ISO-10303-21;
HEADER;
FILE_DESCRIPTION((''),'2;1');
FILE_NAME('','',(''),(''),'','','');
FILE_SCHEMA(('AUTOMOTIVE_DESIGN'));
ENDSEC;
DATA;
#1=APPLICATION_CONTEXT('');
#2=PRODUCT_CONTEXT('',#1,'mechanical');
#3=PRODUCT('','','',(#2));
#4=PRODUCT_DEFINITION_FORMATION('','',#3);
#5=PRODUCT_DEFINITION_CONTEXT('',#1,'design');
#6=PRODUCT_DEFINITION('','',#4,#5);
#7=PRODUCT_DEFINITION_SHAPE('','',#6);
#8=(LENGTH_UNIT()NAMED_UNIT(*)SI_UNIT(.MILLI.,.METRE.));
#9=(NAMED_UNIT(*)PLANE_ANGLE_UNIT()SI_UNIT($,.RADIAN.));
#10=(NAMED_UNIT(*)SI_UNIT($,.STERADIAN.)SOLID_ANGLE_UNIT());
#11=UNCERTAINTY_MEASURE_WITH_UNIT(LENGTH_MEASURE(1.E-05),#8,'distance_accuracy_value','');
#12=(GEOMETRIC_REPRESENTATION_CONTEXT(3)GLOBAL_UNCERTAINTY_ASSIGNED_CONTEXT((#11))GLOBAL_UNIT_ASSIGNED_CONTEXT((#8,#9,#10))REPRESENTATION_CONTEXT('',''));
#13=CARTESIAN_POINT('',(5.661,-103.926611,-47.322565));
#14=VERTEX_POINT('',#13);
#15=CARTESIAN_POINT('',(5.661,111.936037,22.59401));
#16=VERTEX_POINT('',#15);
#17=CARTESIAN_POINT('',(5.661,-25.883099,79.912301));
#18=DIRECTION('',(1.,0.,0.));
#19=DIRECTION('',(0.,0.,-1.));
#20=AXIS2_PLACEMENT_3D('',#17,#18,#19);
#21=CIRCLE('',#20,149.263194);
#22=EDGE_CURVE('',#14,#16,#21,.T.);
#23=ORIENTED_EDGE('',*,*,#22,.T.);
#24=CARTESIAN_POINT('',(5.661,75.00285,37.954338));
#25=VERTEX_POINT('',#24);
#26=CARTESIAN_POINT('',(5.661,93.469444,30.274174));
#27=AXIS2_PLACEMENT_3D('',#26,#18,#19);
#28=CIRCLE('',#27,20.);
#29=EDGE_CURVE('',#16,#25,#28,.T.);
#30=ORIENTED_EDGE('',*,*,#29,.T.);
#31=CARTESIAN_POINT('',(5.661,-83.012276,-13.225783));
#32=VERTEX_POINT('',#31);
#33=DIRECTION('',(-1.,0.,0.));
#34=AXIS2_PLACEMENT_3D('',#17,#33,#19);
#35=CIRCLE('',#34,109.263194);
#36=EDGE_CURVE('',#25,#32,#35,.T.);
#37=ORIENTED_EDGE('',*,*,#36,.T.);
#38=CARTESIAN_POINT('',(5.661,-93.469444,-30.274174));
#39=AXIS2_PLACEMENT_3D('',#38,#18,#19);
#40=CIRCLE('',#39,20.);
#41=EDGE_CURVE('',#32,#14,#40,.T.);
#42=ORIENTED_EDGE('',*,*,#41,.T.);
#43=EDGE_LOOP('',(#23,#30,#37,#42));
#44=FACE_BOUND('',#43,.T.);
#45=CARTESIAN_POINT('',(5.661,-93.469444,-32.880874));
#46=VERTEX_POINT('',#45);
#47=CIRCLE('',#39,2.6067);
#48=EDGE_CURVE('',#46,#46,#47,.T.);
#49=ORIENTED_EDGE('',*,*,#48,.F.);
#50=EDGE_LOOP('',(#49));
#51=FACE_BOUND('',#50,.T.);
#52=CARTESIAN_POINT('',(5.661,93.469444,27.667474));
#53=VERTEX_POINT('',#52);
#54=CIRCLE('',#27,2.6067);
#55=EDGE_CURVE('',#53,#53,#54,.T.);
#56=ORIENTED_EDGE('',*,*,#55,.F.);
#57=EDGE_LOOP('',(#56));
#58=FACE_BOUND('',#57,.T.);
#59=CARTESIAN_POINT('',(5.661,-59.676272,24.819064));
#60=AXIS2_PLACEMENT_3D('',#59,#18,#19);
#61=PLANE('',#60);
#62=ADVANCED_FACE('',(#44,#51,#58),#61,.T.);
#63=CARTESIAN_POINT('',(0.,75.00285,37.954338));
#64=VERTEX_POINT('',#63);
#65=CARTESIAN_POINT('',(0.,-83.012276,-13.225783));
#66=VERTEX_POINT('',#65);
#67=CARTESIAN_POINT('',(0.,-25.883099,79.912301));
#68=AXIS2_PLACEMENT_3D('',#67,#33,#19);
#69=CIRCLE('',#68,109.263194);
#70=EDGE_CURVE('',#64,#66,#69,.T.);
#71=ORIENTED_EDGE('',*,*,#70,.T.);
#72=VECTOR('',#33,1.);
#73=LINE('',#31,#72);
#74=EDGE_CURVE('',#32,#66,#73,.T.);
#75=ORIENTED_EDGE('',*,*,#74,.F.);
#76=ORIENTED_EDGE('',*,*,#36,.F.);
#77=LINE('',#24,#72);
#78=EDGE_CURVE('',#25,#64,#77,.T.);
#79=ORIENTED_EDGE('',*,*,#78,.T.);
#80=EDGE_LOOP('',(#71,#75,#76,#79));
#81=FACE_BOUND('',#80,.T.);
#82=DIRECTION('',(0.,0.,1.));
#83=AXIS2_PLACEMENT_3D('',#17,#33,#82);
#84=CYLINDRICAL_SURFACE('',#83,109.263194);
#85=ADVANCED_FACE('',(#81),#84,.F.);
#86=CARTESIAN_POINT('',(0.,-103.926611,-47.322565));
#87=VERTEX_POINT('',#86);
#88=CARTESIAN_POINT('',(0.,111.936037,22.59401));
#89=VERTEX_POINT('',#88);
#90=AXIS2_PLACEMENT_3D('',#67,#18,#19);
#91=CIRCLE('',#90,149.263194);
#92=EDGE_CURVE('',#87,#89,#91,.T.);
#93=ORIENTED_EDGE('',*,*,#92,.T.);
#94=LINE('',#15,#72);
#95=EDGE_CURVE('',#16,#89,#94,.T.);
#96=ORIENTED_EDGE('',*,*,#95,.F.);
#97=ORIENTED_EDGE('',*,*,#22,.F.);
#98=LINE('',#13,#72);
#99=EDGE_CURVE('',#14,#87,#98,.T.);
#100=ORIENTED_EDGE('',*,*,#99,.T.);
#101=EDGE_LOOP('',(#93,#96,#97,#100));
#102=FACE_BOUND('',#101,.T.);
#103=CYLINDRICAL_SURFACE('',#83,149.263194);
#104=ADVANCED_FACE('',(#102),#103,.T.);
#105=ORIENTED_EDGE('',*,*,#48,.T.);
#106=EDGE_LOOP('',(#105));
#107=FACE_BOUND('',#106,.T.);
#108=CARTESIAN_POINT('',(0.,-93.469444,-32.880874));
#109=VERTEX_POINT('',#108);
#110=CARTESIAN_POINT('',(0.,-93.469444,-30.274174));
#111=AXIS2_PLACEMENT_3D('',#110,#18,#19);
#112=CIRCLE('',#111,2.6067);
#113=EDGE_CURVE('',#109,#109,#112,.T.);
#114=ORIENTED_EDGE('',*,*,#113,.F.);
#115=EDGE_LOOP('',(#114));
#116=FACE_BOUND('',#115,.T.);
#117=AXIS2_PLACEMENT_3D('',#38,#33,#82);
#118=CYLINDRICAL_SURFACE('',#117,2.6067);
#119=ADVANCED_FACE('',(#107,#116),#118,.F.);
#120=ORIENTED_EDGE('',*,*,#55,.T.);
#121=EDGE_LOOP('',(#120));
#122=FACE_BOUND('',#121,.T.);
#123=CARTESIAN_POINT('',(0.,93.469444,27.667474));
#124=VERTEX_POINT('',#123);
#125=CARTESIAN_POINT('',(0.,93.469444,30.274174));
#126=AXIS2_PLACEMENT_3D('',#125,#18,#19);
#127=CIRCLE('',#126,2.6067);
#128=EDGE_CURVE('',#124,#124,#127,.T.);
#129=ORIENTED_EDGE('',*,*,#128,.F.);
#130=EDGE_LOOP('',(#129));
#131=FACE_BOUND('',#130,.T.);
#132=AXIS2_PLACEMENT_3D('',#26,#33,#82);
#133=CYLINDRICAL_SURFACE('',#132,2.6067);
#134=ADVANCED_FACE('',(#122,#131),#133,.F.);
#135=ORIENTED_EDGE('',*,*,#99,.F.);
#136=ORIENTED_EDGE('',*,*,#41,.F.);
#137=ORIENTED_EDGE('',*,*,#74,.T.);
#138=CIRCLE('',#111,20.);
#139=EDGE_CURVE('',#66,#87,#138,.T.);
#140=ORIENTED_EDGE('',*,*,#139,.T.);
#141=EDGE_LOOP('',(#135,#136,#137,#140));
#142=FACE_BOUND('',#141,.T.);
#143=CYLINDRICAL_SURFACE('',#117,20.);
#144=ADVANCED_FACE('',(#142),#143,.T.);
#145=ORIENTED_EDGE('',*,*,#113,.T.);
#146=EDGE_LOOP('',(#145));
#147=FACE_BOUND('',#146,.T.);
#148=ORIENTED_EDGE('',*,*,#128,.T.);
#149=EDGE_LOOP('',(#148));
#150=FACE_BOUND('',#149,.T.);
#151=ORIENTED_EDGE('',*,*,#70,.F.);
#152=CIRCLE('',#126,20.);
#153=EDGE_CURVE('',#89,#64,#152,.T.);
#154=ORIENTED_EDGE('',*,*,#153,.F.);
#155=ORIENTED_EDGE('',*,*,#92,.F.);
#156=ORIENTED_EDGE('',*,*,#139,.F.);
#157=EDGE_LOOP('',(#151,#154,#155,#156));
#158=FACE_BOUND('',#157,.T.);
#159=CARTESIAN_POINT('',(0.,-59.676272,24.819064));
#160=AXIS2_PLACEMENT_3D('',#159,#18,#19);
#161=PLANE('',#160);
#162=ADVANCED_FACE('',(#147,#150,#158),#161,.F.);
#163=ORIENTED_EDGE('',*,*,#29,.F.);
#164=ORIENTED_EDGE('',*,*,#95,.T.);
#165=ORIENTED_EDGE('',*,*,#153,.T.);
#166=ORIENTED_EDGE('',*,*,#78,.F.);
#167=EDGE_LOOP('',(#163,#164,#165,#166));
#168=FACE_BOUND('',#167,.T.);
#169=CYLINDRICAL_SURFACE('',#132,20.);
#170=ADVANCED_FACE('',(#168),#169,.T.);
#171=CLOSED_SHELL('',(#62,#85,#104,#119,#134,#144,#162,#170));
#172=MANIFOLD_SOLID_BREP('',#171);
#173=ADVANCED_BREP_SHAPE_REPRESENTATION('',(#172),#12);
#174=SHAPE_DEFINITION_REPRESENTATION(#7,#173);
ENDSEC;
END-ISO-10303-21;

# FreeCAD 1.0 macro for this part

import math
import FreeCAD as App
import Part
import Sketcher

doc = App.newDocument("Part")
body = doc.addObject("PartDesign::Body", "Body")

# Sketch on YZ plane
sketch1 = body.newObject("Sketcher::SketchObject", "Sketch")
sketch1.AttachmentSupport = (doc.getObject("YZ_Plane"), [""])
sketch1.MapMode = "FlatFace"
sketch1.addGeometry([
    Part.ArcOfCircle(Part.Circle(App.Vector(-25.9, 79.9, 0), App.Vector(0, 0, 1), 149.3), math.radians(-122), math.radians(-23)),  # 0
    Part.ArcOfCircle(Part.Circle(App.Vector(93.5, 30.3, 0), App.Vector(0, 0, 1), 20), math.radians(-23), math.radians(157)),  # 1
    Part.ArcOfCircle(Part.Circle(App.Vector(-25.9, 79.9, 0), App.Vector(0, 0, 1), 109.3), math.radians(-122), math.radians(-23)),  # 2
    Part.ArcOfCircle(Part.Circle(App.Vector(-93.5, -30.3, 0), App.Vector(0, 0, 1), 20), math.radians(58), math.radians(238)),  # 3
    Part.Circle(App.Vector(-93.5, -30.3, 0), App.Vector(0, 0, 1), 2.6),  # 4
    Part.Circle(App.Vector(93.5, 30.3, 0), App.Vector(0, 0, 1), 2.6),  # 5
], False)
sketch1.addConstraint([
    Sketcher.Constraint("Tangent", 0, 2, 1, 1),
    Sketcher.Constraint("Tangent", 1, 2, 2, 2),
    Sketcher.Constraint("Tangent", 2, 1, 3, 1),
    Sketcher.Constraint("Tangent", 3, 2, 0, 1),
    Sketcher.Constraint("Coincident", 2, 3, 0, 3),
    Sketcher.Constraint("Coincident", 4, 3, 3, 3),
    Sketcher.Constraint("Coincident", 5, 3, 1, 3),
    Sketcher.Constraint("Equal", 4, 5),
    Sketcher.Constraint("Symmetric", 1, 3, 3, 3, -1, 1),
    Sketcher.Constraint("Radius", 1, 20.0),
    Sketcher.Constraint("Diameter", 4, 5.2134),
    Sketcher.Constraint("Radius", 0, 149.263194),
    Sketcher.Constraint("DistanceX", 0, 3, -1, 1, 25.883099),
    Sketcher.Constraint("DistanceY", -1, 1, 0, 3, 79.912301),
])
pad1 = body.newObject("PartDesign::Pad", "Pad")
pad1.Profile = sketch1
pad1.Length = 5.661

doc.recompute()
